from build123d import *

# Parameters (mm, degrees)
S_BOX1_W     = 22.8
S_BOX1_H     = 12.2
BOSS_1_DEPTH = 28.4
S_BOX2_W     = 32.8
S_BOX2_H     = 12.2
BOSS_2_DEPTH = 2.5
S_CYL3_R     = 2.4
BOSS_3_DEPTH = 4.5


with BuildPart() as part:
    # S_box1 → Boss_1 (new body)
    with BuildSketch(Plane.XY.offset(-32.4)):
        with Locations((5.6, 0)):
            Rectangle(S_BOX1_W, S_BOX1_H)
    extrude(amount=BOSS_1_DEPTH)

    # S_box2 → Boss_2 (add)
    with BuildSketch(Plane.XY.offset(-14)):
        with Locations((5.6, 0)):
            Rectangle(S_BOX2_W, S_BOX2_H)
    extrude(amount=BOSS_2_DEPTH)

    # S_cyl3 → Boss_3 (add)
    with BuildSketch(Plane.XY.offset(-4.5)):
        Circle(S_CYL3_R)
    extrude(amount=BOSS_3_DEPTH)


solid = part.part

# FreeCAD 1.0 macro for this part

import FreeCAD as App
import Part
import Sketcher
from FreeCAD import Vector


def add_polygon(sketch, points):
    """Adds a closed chain of lines whose ends are joined by coincident constraints."""
    first, n = sketch.GeometryCount, len(points)
    for a, b in zip(points, points[1:] + points[:1]):
        sketch.addGeometry(Part.LineSegment(App.Vector(*a, 0), App.Vector(*b, 0)), False)
    for i in range(n):
        sketch.addConstraint(Sketcher.Constraint("Coincident", first + i, 2, first + (i + 1) % n, 1))

doc = App.newDocument("Part")
body = doc.addObject("PartDesign::Body", "Body")

sketch1 = body.newObject("Sketcher::SketchObject", "Sketch")
sketch1.AttachmentSupport = (doc.getObject("XY_Plane"), [""])
sketch1.MapMode = "FlatFace"
sketch1.AttachmentOffset = App.Placement(Vector(0, 0, -32.4), App.Rotation())
add_polygon(sketch1, [(-6, 6), (-6, -6), (17, -6), (17, 6)])
sketch1.addConstraint(Sketcher.Constraint("Vertical", 0))
sketch1.addConstraint(Sketcher.Constraint("Horizontal", 1))
sketch1.addConstraint(Sketcher.Constraint("Vertical", 2))
sketch1.addConstraint(Sketcher.Constraint("Horizontal", 3))
sketch1.addConstraint(Sketcher.Constraint("DistanceX", 1, 1, 1, 2, 22.8))
sketch1.addConstraint(Sketcher.Constraint("DistanceY", 0, 2, 0, 1, 12.2))
sketch1.addConstraint(Sketcher.Constraint("DistanceX", -1, 1, 1, 2, 17.0))
sketch1.addConstraint(Sketcher.Constraint("DistanceY", 0, 2, -1, 1, 6.1))
pad1 = body.newObject("PartDesign::Pad", "Pad")
pad1.Profile = sketch1
pad1.Length = 28.4

sketch2 = body.newObject("Sketcher::SketchObject", "Sketch001")
sketch2.AttachmentSupport = (doc.getObject("XY_Plane"), [""])
sketch2.MapMode = "FlatFace"
sketch2.AttachmentOffset = App.Placement(Vector(0, 0, -14), App.Rotation())
add_polygon(sketch2, [(-11, 6), (-11, -6), (22, -6), (22, 6)])
sketch2.addConstraint(Sketcher.Constraint("Vertical", 0))
sketch2.addConstraint(Sketcher.Constraint("Horizontal", 1))
sketch2.addConstraint(Sketcher.Constraint("Vertical", 2))
sketch2.addConstraint(Sketcher.Constraint("Horizontal", 3))
sketch2.addConstraint(Sketcher.Constraint("DistanceX", 1, 1, 1, 2, 32.8))
sketch2.addConstraint(Sketcher.Constraint("DistanceY", 0, 2, 0, 1, 12.2))
sketch2.addConstraint(Sketcher.Constraint("DistanceX", -1, 1, 1, 2, 22.0))
sketch2.addConstraint(Sketcher.Constraint("DistanceY", 0, 2, -1, 1, 6.1))
pad2 = body.newObject("PartDesign::Pad", "Pad001")
pad2.Profile = sketch2
pad2.Length = 2.5

sketch3 = body.newObject("Sketcher::SketchObject", "Sketch002")
sketch3.AttachmentSupport = (doc.getObject("XY_Plane"), [""])
sketch3.MapMode = "FlatFace"
sketch3.AttachmentOffset = App.Placement(Vector(0, 0, -4.5), App.Rotation())
sketch3.addGeometry(Part.Circle(Vector(0, 0, 0), Vector(0, 0, 1), 2.4), False)
sketch3.addConstraint(Sketcher.Constraint("Coincident", 0, 3, -1, 1))
sketch3.addConstraint(Sketcher.Constraint("Diameter", 0, 4.8))
pad3 = body.newObject("PartDesign::Pad", "Pad002")
pad3.Profile = sketch3
pad3.Length = 4.5

doc.recompute()
